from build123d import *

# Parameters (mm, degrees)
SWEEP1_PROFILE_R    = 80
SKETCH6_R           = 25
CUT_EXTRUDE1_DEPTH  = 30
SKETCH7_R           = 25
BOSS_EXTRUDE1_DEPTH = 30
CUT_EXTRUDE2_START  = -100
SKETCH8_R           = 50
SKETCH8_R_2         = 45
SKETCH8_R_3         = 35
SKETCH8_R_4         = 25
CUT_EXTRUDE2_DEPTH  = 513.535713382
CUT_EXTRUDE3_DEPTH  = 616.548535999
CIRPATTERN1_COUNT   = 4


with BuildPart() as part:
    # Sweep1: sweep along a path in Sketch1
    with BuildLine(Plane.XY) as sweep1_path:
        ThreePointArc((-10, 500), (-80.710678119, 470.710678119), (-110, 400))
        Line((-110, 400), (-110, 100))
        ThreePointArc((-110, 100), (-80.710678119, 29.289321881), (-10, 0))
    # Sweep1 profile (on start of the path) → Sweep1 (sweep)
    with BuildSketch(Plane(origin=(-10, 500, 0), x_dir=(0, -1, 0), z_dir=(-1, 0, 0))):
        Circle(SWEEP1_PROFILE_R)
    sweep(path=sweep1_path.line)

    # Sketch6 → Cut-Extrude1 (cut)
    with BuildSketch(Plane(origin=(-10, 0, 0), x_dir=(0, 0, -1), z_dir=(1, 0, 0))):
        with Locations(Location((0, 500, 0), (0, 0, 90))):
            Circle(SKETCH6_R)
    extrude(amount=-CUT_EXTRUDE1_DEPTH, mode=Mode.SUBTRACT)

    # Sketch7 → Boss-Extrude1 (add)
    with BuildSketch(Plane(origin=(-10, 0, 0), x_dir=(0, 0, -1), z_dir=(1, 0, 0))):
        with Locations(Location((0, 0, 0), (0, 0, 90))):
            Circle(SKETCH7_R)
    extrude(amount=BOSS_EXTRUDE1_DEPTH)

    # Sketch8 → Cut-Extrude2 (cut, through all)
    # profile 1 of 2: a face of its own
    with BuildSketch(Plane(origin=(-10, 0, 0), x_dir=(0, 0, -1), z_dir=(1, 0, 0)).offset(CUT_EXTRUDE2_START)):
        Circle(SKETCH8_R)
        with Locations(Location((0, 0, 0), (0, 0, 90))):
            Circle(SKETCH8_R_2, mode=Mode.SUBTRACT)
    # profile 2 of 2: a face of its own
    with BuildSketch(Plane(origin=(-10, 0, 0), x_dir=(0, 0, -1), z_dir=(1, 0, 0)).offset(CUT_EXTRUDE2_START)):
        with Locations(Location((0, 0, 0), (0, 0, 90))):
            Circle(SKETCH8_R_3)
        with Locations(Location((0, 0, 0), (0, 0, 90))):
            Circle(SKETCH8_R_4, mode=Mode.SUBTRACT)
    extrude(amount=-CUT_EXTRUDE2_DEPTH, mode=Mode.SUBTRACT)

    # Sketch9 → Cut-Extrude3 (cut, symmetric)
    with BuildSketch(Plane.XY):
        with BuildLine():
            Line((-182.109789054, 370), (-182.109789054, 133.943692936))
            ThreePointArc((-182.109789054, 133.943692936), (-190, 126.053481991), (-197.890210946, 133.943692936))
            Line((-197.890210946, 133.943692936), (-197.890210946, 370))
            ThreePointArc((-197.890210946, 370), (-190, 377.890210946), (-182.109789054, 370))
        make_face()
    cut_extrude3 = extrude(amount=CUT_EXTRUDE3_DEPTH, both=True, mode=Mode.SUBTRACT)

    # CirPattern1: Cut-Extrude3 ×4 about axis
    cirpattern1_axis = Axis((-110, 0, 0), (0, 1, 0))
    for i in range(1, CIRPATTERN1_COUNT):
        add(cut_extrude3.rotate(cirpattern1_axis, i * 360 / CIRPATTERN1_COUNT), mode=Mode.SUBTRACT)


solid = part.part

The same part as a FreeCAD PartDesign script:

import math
import FreeCAD as App
import Part
import Sketcher
from FreeCAD import Vector
Q = App.Units.Quantity

doc = App.newDocument("Part")
body = doc.addObject("PartDesign::Body", "Body")

sketch1 = body.newObject("Sketcher::SketchObject", "Sketch")
sketch1.AttachmentSupport = (doc.getObject("YZ_Plane"), [""])
sketch1.MapMode = "FlatFace"
sketch1.AttachmentOffset = App.Placement(Vector(0, 0, -10), App.Rotation())
sketch1.addGeometry(Part.Circle(Vector(500, 0, 0), Vector(0, 0, 1), 80), False)
sketch1.addConstraint(Sketcher.Constraint("PointOnObject", 0, 3, -1))
sketch1.addConstraint(Sketcher.Constraint("Diameter", 0, Q("160 mm")))
sketch1.addConstraint(Sketcher.Constraint("DistanceX", -1, 1, 0, 3, Q("500 mm")))

sketch2 = body.newObject("Sketcher::SketchObject", "Sketch001")
sketch2.AttachmentSupport = (doc.getObject("XY_Plane"), [""])
sketch2.MapMode = "FlatFace"
sketch2.addGeometry(Part.ArcOfCircle(Part.Circle(Vector(-10, 400, 0), Vector(0, 0, 1), 100), math.radians(90), math.radians(180)), False)
sketch2.addGeometry(Part.LineSegment(Vector(-110, 400, 0), Vector(-110, 100, 0)), False)
sketch2.addGeometry(Part.ArcOfCircle(Part.Circle(Vector(-10, 100, 0), Vector(0, 0, 1), 100), math.radians(180), math.radians(270)), False)
sketch2.addConstraint(Sketcher.Constraint("Tangent", 0, 2, 1, 1))
sketch2.addConstraint(Sketcher.Constraint("Tangent", 1, 2, 2, 1))
sketch2.addConstraint(Sketcher.Constraint("Vertical", 1))
sketch2.addConstraint(Sketcher.Constraint("Equal", 0, 2))
sketch2.addConstraint(Sketcher.Constraint("PointOnObject", 2, 2, -1))
sketch2.addConstraint(Sketcher.Constraint("Vertical", 2, 3, 0, 1))
sketch2.addConstraint(Sketcher.Constraint("Vertical", 0, 1, 2, 2))
sketch2.addConstraint(Sketcher.Constraint("Radius", 0, Q("100 mm")))
sketch2.addConstraint(Sketcher.Constraint("DistanceY", 1, 2, 1, 1, Q("300 mm")))
sketch2.addConstraint(Sketcher.Constraint("DistanceX", 0, 3, -1, 1, Q("10 mm")))
doc.recompute()

additivepipe = body.newObject("PartDesign::AdditivePipe", "AdditivePipe")
additivepipe.Profile = sketch1
additivepipe.Spine = (sketch2, ["Edge1", "Edge2", "Edge3"])

sketch3 = body.newObject("Sketcher::SketchObject", "Sketch002")
sketch3.AttachmentSupport = (doc.getObject("YZ_Plane"), [""])
sketch3.MapMode = "FlatFace"
sketch3.AttachmentOffset = App.Placement(Vector(0, 0, -10), App.Rotation())
sketch3.addGeometry(Part.Circle(Vector(500, 0, 0), Vector(0, 0, 1), 25), False)
sketch3.addConstraint(Sketcher.Constraint("PointOnObject", 0, 3, -1))
sketch3.addConstraint(Sketcher.Constraint("Diameter", 0, Q("50 mm")))
sketch3.addConstraint(Sketcher.Constraint("DistanceX", -1, 1, 0, 3, Q("500 mm")))
pocket1 = body.newObject("PartDesign::Pocket", "Pocket")
pocket1.Profile = sketch3
pocket1.Length = 30

sketch4 = body.newObject("Sketcher::SketchObject", "Sketch003")
sketch4.AttachmentSupport = (doc.getObject("YZ_Plane"), [""])
sketch4.MapMode = "FlatFace"
sketch4.AttachmentOffset = App.Placement(Vector(0, 0, -10), App.Rotation())
sketch4.addGeometry(Part.Circle(Vector(0, 0, 0), Vector(0, 0, 1), 25), False)
sketch4.addConstraint(Sketcher.Constraint("Coincident", 0, 3, -1, 1))
sketch4.addConstraint(Sketcher.Constraint("Diameter", 0, Q("50 mm")))
pad1 = body.newObject("PartDesign::Pad", "Pad")
pad1.Profile = sketch4
pad1.Length = 30

sketch5 = body.newObject("Sketcher::SketchObject", "Sketch004")
sketch5.AttachmentSupport = (doc.getObject("YZ_Plane"), [""])
sketch5.MapMode = "FlatFace"
sketch5.AttachmentOffset = App.Placement(Vector(0, 0, -110), App.Rotation())
sketch5.addGeometry(Part.Circle(Vector(0, 0, 0), Vector(0, 0, 1), 50), False)
sketch5.addGeometry(Part.Circle(Vector(0, 0, 0), Vector(0, 0, 1), 45), False)
sketch5.addGeometry(Part.Circle(Vector(0, 0, 0), Vector(0, 0, 1), 35), False)
sketch5.addGeometry(Part.Circle(Vector(0, 0, 0), Vector(0, 0, 1), 25), False)
sketch5.addConstraint(Sketcher.Constraint("Coincident", 0, 3, -1, 1))
sketch5.addConstraint(Sketcher.Constraint("Coincident", 1, 3, -1, 1))
sketch5.addConstraint(Sketcher.Constraint("Coincident", 2, 3, -1, 1))
sketch5.addConstraint(Sketcher.Constraint("Coincident", 3, 3, -1, 1))
sketch5.addConstraint(Sketcher.Constraint("Diameter", 0, Q("100 mm")))
sketch5.addConstraint(Sketcher.Constraint("Diameter", 1, Q("90 mm")))
sketch5.addConstraint(Sketcher.Constraint("Diameter", 2, Q("70 mm")))
sketch5.addConstraint(Sketcher.Constraint("Diameter", 3, Q("50 mm")))
pocket2 = body.newObject("PartDesign::Pocket", "Pocket001")
pocket2.Profile = sketch5
pocket2.Length = 513.535713

sketch6 = body.newObject("Sketcher::SketchObject", "Sketch005")
sketch6.AttachmentSupport = (doc.getObject("XY_Plane"), [""])
sketch6.MapMode = "FlatFace"
sketch6.addGeometry(Part.LineSegment(Vector(-182.109789, 133.943693, 0), Vector(-182.109789, 370, 0)), False)
sketch6.addGeometry(Part.ArcOfCircle(Part.Circle(Vector(-190, 370, 0), Vector(0, 0, 1), 7.890211), math.radians(0), math.radians(180)), False)
sketch6.addGeometry(Part.LineSegment(Vector(-197.890211, 370, 0), Vector(-197.890211, 133.943693, 0)), False)
sketch6.addGeometry(Part.ArcOfCircle(Part.Circle(Vector(-190, 133.943693, 0), Vector(0, 0, 1), 7.890211), math.radians(-180), math.radians(0)), False)
sketch6.addConstraint(Sketcher.Constraint("Tangent", 0, 2, 1, 1))
sketch6.addConstraint(Sketcher.Constraint("Tangent", 1, 2, 2, 1))
sketch6.addConstraint(Sketcher.Constraint("Tangent", 2, 2, 3, 1))
sketch6.addConstraint(Sketcher.Constraint("Tangent", 3, 2, 0, 1))
sketch6.addConstraint(Sketcher.Constraint("Vertical", 0))
sketch6.addConstraint(Sketcher.Constraint("Vertical", 2))
sketch6.addConstraint(Sketcher.Constraint("DistanceX", 1, 3, -1, 1, Q("190 mm")))
sketch6.addConstraint(Sketcher.Constraint("DistanceY", -1, 1, 1, 3, Q("370 mm")))
sketch6.addConstraint(Sketcher.Constraint("Radius", 1, Q("7.890211 mm")))
sketch6.addConstraint(Sketcher.Constraint("DistanceY", 0, 1, 0, 2, Q("236.056307 mm")))
pocket3 = body.newObject("PartDesign::Pocket", "Pocket002")
pocket3.Profile = sketch6
pocket3.Length = 1233.097072
pocket3.Midplane = True
doc.recompute()

datumline = body.newObject("PartDesign::Line", "DatumLine")
datumline.Placement = App.Placement(Vector(-110, 0, 0), App.Rotation(Vector(0, 0, 1), Vector(0, 1, 0)))
polarpattern = body.newObject("PartDesign::PolarPattern", "PolarPattern")
polarpattern.Originals = [pocket3]
polarpattern.Axis = (datumline, [""])
polarpattern.Angle = 360
polarpattern.Occurrences = 4
body.Tip = polarpattern

doc.recompute()
